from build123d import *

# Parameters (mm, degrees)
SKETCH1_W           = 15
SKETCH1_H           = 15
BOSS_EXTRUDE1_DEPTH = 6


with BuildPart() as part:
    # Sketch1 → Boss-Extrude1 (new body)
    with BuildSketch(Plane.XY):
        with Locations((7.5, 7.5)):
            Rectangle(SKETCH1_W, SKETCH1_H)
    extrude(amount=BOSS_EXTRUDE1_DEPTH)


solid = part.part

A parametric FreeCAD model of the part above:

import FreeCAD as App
import Part
import Sketcher

V = App.Vector

doc = App.newDocument("Part")
params = doc.addObject("Spreadsheet::Sheet", "Params")
for row, (alias, value) in enumerate([
    ("sketch1_width", "15 mm"),
    ("pad1_length", "6 mm"),
], start=1):
    params.set(f"A{row}", alias)
    params.set(f"B{row}", "=" + value)
    params.setAlias(f"B{row}", alias)

body = doc.addObject("PartDesign::Body", "Body")

# Sketch on XY plane
sketch1 = doc.addObject("Sketcher::SketchObject", "Sketch")
body.addObject(sketch1)
sketch1.AttachmentSupport = (doc.XY_Plane, [""])
sketch1.MapMode = "FlatFace"
sketch1.addGeometry(Part.LineSegment(V(0, 15, 0), V(0, 0, 0)), False)
sketch1.addGeometry(Part.LineSegment(V(0, 0, 0), V(15, 0, 0)), False)
sketch1.addGeometry(Part.LineSegment(V(15, 0, 0), V(15, 15, 0)), False)
sketch1.addGeometry(Part.LineSegment(V(15, 15, 0), V(0, 15, 0)), False)
sketch1.addConstraint(Sketcher.Constraint("Coincident", 0, 2, 1, 1))
sketch1.addConstraint(Sketcher.Constraint("Coincident", 1, 2, 2, 1))
sketch1.addConstraint(Sketcher.Constraint("Coincident", 2, 2, 3, 1))
sketch1.addConstraint(Sketcher.Constraint("Coincident", 3, 2, 0, 1))
sketch1.addConstraint(Sketcher.Constraint("Vertical", 0))
sketch1.addConstraint(Sketcher.Constraint("Horizontal", 1))
sketch1.addConstraint(Sketcher.Constraint("Vertical", 2))
sketch1.addConstraint(Sketcher.Constraint("Horizontal", 3))
sketch1.addConstraint(Sketcher.Constraint("Coincident", 0, 2, -1, 1))
sketch1.addConstraint(Sketcher.Constraint("Equal", 3, 0))
sketch1.addConstraint(Sketcher.Constraint("DistanceX", 1, 1, 1, 2, 15.0))
sketch1.setExpression("Constraints[10]", "Params.sketch1_width")
pad1 = doc.addObject("PartDesign::Pad", "Pad")
body.addObject(pad1)
pad1.Profile = sketch1
pad1.setExpression("Length", "Params.pad1_length")

doc.recompute()
